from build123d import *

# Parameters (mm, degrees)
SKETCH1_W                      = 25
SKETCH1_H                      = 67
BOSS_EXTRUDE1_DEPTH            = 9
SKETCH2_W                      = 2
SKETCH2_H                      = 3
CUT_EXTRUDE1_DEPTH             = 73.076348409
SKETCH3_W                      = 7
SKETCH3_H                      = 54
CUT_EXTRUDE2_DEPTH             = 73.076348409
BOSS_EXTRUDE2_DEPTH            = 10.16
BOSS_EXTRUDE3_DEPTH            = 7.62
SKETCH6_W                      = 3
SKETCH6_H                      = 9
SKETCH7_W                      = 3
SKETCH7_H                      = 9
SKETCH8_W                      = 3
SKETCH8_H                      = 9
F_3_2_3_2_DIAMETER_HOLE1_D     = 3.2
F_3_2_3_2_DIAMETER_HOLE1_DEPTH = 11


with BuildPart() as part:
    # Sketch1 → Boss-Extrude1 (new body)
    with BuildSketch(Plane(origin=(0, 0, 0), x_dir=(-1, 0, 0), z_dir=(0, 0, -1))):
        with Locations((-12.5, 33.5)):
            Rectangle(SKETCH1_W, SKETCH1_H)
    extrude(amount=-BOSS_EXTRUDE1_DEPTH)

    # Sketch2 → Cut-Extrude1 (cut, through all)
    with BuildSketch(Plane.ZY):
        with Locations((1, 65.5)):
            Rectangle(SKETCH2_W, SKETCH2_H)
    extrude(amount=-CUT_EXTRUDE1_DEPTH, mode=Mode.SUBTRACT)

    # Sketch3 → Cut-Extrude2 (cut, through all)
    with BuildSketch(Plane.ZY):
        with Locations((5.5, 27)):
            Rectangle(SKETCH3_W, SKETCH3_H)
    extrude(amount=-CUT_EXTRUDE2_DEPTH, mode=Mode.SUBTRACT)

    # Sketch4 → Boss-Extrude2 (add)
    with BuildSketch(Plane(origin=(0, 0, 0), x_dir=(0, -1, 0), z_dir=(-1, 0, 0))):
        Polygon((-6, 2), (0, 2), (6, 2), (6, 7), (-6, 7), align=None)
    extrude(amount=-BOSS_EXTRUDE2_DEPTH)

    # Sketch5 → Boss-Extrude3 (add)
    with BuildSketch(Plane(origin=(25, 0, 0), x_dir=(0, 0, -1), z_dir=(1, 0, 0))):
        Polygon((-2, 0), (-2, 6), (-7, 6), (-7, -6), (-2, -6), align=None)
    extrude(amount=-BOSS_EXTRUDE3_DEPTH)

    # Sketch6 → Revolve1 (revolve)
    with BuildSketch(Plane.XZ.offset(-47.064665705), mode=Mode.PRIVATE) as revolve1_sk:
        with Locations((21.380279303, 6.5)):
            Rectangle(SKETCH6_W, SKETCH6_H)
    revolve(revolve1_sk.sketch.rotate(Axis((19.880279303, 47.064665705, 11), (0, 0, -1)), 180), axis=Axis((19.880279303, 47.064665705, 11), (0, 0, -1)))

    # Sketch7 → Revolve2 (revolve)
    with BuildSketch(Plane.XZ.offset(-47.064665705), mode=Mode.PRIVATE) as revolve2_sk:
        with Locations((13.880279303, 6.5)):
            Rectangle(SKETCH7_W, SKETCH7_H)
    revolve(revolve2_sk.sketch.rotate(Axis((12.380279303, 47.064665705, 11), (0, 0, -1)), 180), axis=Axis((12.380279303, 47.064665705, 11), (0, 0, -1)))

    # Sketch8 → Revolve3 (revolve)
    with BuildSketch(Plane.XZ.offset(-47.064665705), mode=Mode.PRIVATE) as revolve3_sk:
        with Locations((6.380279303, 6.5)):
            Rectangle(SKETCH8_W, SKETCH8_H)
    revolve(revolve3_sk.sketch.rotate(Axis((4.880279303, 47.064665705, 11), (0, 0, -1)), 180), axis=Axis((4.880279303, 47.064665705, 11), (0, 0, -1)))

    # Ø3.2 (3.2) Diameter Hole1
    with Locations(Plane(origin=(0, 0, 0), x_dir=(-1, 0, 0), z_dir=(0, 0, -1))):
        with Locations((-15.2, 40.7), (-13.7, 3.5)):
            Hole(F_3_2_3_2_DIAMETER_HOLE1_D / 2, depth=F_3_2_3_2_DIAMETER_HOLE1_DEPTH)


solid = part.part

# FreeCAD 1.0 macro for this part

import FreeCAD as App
import Part
import Sketcher

V = App.Vector


def add_polygon(sketch, points):
    """Adds a closed chain of lines whose ends are joined by coincident constraints."""
    first, n = sketch.GeometryCount, len(points)
    for a, b in zip(points, points[1:] + points[:1]):
        sketch.addGeometry(Part.LineSegment(App.Vector(*a, 0), App.Vector(*b, 0)), False)
    for i in range(n):
        sketch.addConstraint(Sketcher.Constraint("Coincident", first + i, 2, first + (i + 1) % n, 1))

doc = App.newDocument("Part")
body = doc.addObject("PartDesign::Body", "Body")

# Sketch on XY plane
sketch1 = body.newObject("Sketcher::SketchObject", "Sketch")
sketch1.AttachmentSupport = (doc.getObject("XY_Plane"), [""])
sketch1.MapMode = "FlatFace"
add_polygon(sketch1, [(25, 67), (25, 0), (0, 0), (0, 67)])  # lines 0-3
sketch1.addConstraint([
    Sketcher.Constraint("Vertical", 0),
    Sketcher.Constraint("Horizontal", 1),
    Sketcher.Constraint("Vertical", 2),
    Sketcher.Constraint("Horizontal", 3),
    Sketcher.Constraint("Coincident", 1, 2, -1, 1),
    Sketcher.Constraint("DistanceX", 1, 2, 1, 1, 25.0),
    Sketcher.Constraint("DistanceY", 0, 2, 0, 1, 67.0),
])
pad1 = body.newObject("PartDesign::Pad", "Pad")
pad1.Profile = sketch1
pad1.Length = 9

# Sketch on YZ plane
sketch2 = body.newObject("Sketcher::SketchObject", "Sketch001")
sketch2.AttachmentSupport = (doc.getObject("YZ_Plane"), [""])
sketch2.MapMode = "FlatFace"
add_polygon(sketch2, [(67, 0), (64, 0), (64, 2), (67, 2)])  # lines 0-3
sketch2.addConstraint([
    Sketcher.Constraint("Horizontal", 0),
    Sketcher.Constraint("Vertical", 1),
    Sketcher.Constraint("Horizontal", 2),
    Sketcher.Constraint("Vertical", 3),
    Sketcher.Constraint("PointOnObject", 0, 2, -1),
    Sketcher.Constraint("DistanceX", 0, 2, 0, 1, 3.0),
    Sketcher.Constraint("DistanceY", 1, 1, 1, 2, 2.0),
    Sketcher.Constraint("DistanceX", -1, 1, 0, 2, 64.0),
])
pocket1 = body.newObject("PartDesign::Pocket", "Pocket")
pocket1.Profile = sketch2
pocket1.Type = "ThroughAll"
pocket1.Reversed = True

# Sketch on YZ plane
sketch3 = body.newObject("Sketcher::SketchObject", "Sketch002")
sketch3.AttachmentSupport = (doc.getObject("YZ_Plane"), [""])
sketch3.MapMode = "FlatFace"
add_polygon(sketch3, [(54, 2), (0, 2), (0, 9), (54, 9)])  # lines 0-3
sketch3.addConstraint([
    Sketcher.Constraint("Horizontal", 0),
    Sketcher.Constraint("Vertical", 1),
    Sketcher.Constraint("Horizontal", 2),
    Sketcher.Constraint("Vertical", 3),
    Sketcher.Constraint("PointOnObject", 0, 2, -2),
    Sketcher.Constraint("DistanceX", 0, 2, 0, 1, 54.0),
    Sketcher.Constraint("DistanceY", 1, 1, 1, 2, 7.0),
    Sketcher.Constraint("DistanceY", -1, 1, 0, 2, 2.0),
])
pocket2 = body.newObject("PartDesign::Pocket", "Pocket001")
pocket2.Profile = sketch3
pocket2.Type = "ThroughAll"
pocket2.Reversed = True

# Sketch on YZ plane
sketch4 = body.newObject("Sketcher::SketchObject", "Sketch003")
sketch4.AttachmentSupport = (doc.getObject("YZ_Plane"), [""])
sketch4.MapMode = "FlatFace"
add_polygon(sketch4, [(6, 2), (-6, 2), (-6, 7), (6, 7)])  # lines 0-3
sketch4.addConstraint([
    Sketcher.Constraint("Horizontal", 0),
    Sketcher.Constraint("Vertical", 1),
    Sketcher.Constraint("Horizontal", 2),
    Sketcher.Constraint("Vertical", 3),
    Sketcher.Constraint("DistanceX", 0, 2, 0, 1, 12.0),
    Sketcher.Constraint("DistanceY", 1, 1, 1, 2, 5.0),
    Sketcher.Constraint("DistanceX", 0, 2, -1, 1, 6.0),
    Sketcher.Constraint("DistanceY", -1, 1, 0, 2, 2.0),
])
pad2 = body.newObject("PartDesign::Pad", "Pad001")
pad2.Profile = sketch4
pad2.Length = 10.16

# Sketch on YZ plane
sketch5 = body.newObject("Sketcher::SketchObject", "Sketch004")
sketch5.AttachmentSupport = (doc.getObject("YZ_Plane"), [""])
sketch5.MapMode = "FlatFace"
sketch5.AttachmentOffset = App.Placement(V(0, 0, 25), App.Rotation())
add_polygon(sketch5, [(6, 2), (6, 7), (-6, 7), (-6, 2)])  # lines 0-3
sketch5.addConstraint([
    Sketcher.Constraint("Vertical", 0),
    Sketcher.Constraint("Horizontal", 1),
    Sketcher.Constraint("Vertical", 2),
    Sketcher.Constraint("Horizontal", 3),
    Sketcher.Constraint("DistanceX", 1, 2, 1, 1, 12.0),
    Sketcher.Constraint("DistanceY", 0, 1, 0, 2, 5.0),
    Sketcher.Constraint("DistanceX", -1, 1, 0, 2, 6.0),
    Sketcher.Constraint("DistanceY", -1, 1, 0, 2, 7.0),
])
pad3 = body.newObject("PartDesign::Pad", "Pad002")
pad3.Profile = sketch5
pad3.Length = 7.62
pad3.Reversed = True

# Sketch on XZ plane
sketch6 = body.newObject("Sketcher::SketchObject", "Sketch005")
sketch6.AttachmentSupport = (doc.getObject("XZ_Plane"), [""])
sketch6.MapMode = "FlatFace"
sketch6.AttachmentOffset = App.Placement(V(0, 0, -47.064666), App.Rotation())
add_polygon(sketch6, [(19.9, 11), (19.9, 2), (22.9, 2), (22.9, 11)])  # lines 0-3
sketch6.addGeometry(Part.LineSegment(V(19.9, 11, 0), V(19.9, 2, 0)), True)  # axis
sketch6.addConstraint([
    Sketcher.Constraint("Vertical", 0),
    Sketcher.Constraint("Horizontal", 1),
    Sketcher.Constraint("Vertical", 2),
    Sketcher.Constraint("Horizontal", 3),
    Sketcher.Constraint("Vertical", 4),
    Sketcher.Constraint("Coincident", 4, 1, 3, 2),
    Sketcher.Constraint("Horizontal", 1, 2, 4, 2),
    Sketcher.Constraint("DistanceX", 1, 1, 1, 2, 3.0),
    Sketcher.Constraint("DistanceY", 0, 2, 0, 1, 9.0),
    Sketcher.Constraint("DistanceY", -1, 1, 0, 2, 2.0),
    Sketcher.Constraint("DistanceX", -1, 1, 0, 2, 19.880279),
])
revolution = body.newObject("PartDesign::Revolution", "Revolution")
revolution.Profile = sketch6
revolution.ReferenceAxis = (sketch6, ["Axis0"])
revolution.Angle = 360

# Sketch on XZ plane
sketch7 = body.newObject("Sketcher::SketchObject", "Sketch006")
sketch7.AttachmentSupport = (doc.getObject("XZ_Plane"), [""])
sketch7.MapMode = "FlatFace"
sketch7.AttachmentOffset = App.Placement(V(0, 0, -47.064666), App.Rotation())
add_polygon(sketch7, [(12.4, 11), (12.4, 2), (15.4, 2), (15.4, 11)])  # lines 0-3
sketch7.addGeometry(Part.LineSegment(V(12.4, 11, 0), V(12.4, 2, 0)), True)  # axis
sketch7.addConstraint([
    Sketcher.Constraint("Vertical", 0),
    Sketcher.Constraint("Horizontal", 1),
    Sketcher.Constraint("Vertical", 2),
    Sketcher.Constraint("Horizontal", 3),
    Sketcher.Constraint("Vertical", 4),
    Sketcher.Constraint("Coincident", 4, 1, 3, 2),
    Sketcher.Constraint("Horizontal", 1, 2, 4, 2),
    Sketcher.Constraint("DistanceX", 1, 1, 1, 2, 3.0),
    Sketcher.Constraint("DistanceY", 0, 2, 0, 1, 9.0),
    Sketcher.Constraint("DistanceY", -1, 1, 0, 2, 2.0),
    Sketcher.Constraint("DistanceX", -1, 1, 0, 2, 12.380279),
])
revolution2 = body.newObject("PartDesign::Revolution", "Revolution001")
revolution2.Profile = sketch7
revolution2.ReferenceAxis = (sketch7, ["Axis0"])
revolution2.Angle = 360

# Sketch on XZ plane
sketch8 = body.newObject("Sketcher::SketchObject", "Sketch007")
sketch8.AttachmentSupport = (doc.getObject("XZ_Plane"), [""])
sketch8.MapMode = "FlatFace"
sketch8.AttachmentOffset = App.Placement(V(0, 0, -47.064666), App.Rotation())
add_polygon(sketch8, [(4.9, 11), (4.9, 2), (7.9, 2), (7.9, 11)])  # lines 0-3
sketch8.addGeometry(Part.LineSegment(V(4.9, 11, 0), V(4.9, 2, 0)), True)  # axis
sketch8.addConstraint([
    Sketcher.Constraint("Vertical", 0),
    Sketcher.Constraint("Horizontal", 1),
    Sketcher.Constraint("Vertical", 2),
    Sketcher.Constraint("Horizontal", 3),
    Sketcher.Constraint("Vertical", 4),
    Sketcher.Constraint("Coincident", 4, 1, 3, 2),
    Sketcher.Constraint("Horizontal", 1, 2, 4, 2),
    Sketcher.Constraint("DistanceX", 1, 1, 1, 2, 3.0),
    Sketcher.Constraint("DistanceY", 0, 2, 0, 1, 9.0),
    Sketcher.Constraint("DistanceY", -1, 1, 0, 2, 2.0),
    Sketcher.Constraint("DistanceX", -1, 1, 0, 2, 4.880279),
])
revolution3 = body.newObject("PartDesign::Revolution", "Revolution002")
revolution3.Profile = sketch8
revolution3.ReferenceAxis = (sketch8, ["Axis0"])
revolution3.Angle = 360

# Sketch on XY plane
sketch9 = body.newObject("Sketcher::SketchObject", "Sketch008")
sketch9.AttachmentSupport = (doc.getObject("XY_Plane"), [""])
sketch9.MapMode = "FlatFace"
sketch9.addGeometry([
    Part.Circle(V(15.2, 40.7, 0), V(0, 0, 1), 1.6),
    Part.Circle(V(13.7, 3.5, 0), V(0, 0, 1), 1.6),
], False)
sketch9.addConstraint([
    Sketcher.Constraint("Equal", 0, 1),
    Sketcher.Constraint("Diameter", 0, 3.2),
    Sketcher.Constraint("DistanceX", -1, 1, 0, 3, 15.2),
    Sketcher.Constraint("DistanceY", -1, 1, 0, 3, 40.7),
    Sketcher.Constraint("DistanceX", -1, 1, 1, 3, 13.7),
    Sketcher.Constraint("DistanceY", -1, 1, 1, 3, 3.5),
])
doc.recompute()
hole = body.newObject("PartDesign::Hole", "Hole")
hole.Profile = sketch9
hole.ThreadType = "None"
hole.Diameter = 3.2
hole.DepthType = "Dimension"
hole.Depth = 11
hole.DrillPoint = "Flat"
hole.Reversed = True

doc.recompute()
